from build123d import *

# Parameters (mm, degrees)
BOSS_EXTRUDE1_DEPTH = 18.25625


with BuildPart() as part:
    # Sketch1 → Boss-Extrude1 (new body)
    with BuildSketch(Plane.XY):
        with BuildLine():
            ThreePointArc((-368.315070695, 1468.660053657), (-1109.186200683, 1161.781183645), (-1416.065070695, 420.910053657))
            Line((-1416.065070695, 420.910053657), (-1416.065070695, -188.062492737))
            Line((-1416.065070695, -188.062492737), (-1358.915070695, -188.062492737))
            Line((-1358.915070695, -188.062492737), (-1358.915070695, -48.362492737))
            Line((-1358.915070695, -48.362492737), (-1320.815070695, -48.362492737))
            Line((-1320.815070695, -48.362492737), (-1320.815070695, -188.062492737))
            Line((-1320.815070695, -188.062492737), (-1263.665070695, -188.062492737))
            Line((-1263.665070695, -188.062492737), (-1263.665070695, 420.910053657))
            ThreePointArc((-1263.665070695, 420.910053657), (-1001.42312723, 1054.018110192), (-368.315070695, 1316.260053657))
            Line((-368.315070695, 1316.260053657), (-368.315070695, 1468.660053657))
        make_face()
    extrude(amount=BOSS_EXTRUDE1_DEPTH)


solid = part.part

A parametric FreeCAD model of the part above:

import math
import FreeCAD as App
import Part
import Sketcher

V = App.Vector
Q = App.Units.Quantity

doc = App.newDocument("Part")
params = doc.addObject("Spreadsheet::Sheet", "Params")
for row, (alias, value) in enumerate([
    ("sketch1_height", "6 in"),
    ("sketch1_radius", "41.25 in"),
    ("sketch1_width", "1.5 in"),
    ("sketch1_height2", "5.5 in"),
    ("pad1_length", "0.71875 in"),
], start=1):
    params.set(f"A{row}", alias)
    params.set(f"B{row}", "=" + value)
    params.setAlias(f"B{row}", alias)

body = doc.addObject("PartDesign::Body", "Body")

# Sketch on XY plane
sketch1 = body.newObject("Sketcher::SketchObject", "Sketch")
sketch1.AttachmentSupport = (doc.getObject("XY_Plane"), [""])
sketch1.MapMode = "FlatFace"
sketch1.addGeometry(Part.ArcOfCircle(Part.Circle(V(-368, 421, 0), V(0, 0, 1), 1048), math.radians(90), math.radians(180)), False)
sketch1.addGeometry(Part.LineSegment(V(-1416, 421, 0), V(-1416, -188, 0)), False)
sketch1.addGeometry(Part.LineSegment(V(-1416, -188, 0), V(-1359, -188, 0)), False)
sketch1.addGeometry(Part.LineSegment(V(-1359, -188, 0), V(-1359, -48, 0)), False)
sketch1.addGeometry(Part.LineSegment(V(-1359, -48, 0), V(-1321, -48, 0)), False)
sketch1.addGeometry(Part.LineSegment(V(-1321, -48, 0), V(-1321, -188, 0)), False)
sketch1.addGeometry(Part.LineSegment(V(-1321, -188, 0), V(-1264, -188, 0)), False)
sketch1.addGeometry(Part.LineSegment(V(-1264, -188, 0), V(-1264, 421, 0)), False)
sketch1.addGeometry(Part.ArcOfCircle(Part.Circle(V(-368, 421, 0), V(0, 0, 1), 895), math.radians(90), math.radians(180)), False)
sketch1.addGeometry(Part.LineSegment(V(-368, 1316, 0), V(-368, 1469, 0)), False)
sketch1.addConstraint(Sketcher.Constraint("Tangent", 0, 2, 1, 1))
sketch1.addConstraint(Sketcher.Constraint("Coincident", 1, 2, 2, 1))
sketch1.addConstraint(Sketcher.Constraint("Coincident", 2, 2, 3, 1))
sketch1.addConstraint(Sketcher.Constraint("Coincident", 3, 2, 4, 1))
sketch1.addConstraint(Sketcher.Constraint("Coincident", 4, 2, 5, 1))
sketch1.addConstraint(Sketcher.Constraint("Coincident", 5, 2, 6, 1))
sketch1.addConstraint(Sketcher.Constraint("Coincident", 6, 2, 7, 1))
sketch1.addConstraint(Sketcher.Constraint("Tangent", 7, 2, 8, 2))
sketch1.addConstraint(Sketcher.Constraint("Coincident", 8, 1, 9, 1))
sketch1.addConstraint(Sketcher.Constraint("Coincident", 9, 2, 0, 1))
sketch1.addConstraint(Sketcher.Constraint("Vertical", 1))
sketch1.addConstraint(Sketcher.Constraint("Horizontal", 2))
sketch1.addConstraint(Sketcher.Constraint("Vertical", 3))
sketch1.addConstraint(Sketcher.Constraint("Horizontal", 4))
sketch1.addConstraint(Sketcher.Constraint("Vertical", 5))
sketch1.addConstraint(Sketcher.Constraint("Horizontal", 6))
sketch1.addConstraint(Sketcher.Constraint("Vertical", 7))
sketch1.addConstraint(Sketcher.Constraint("Vertical", 9))
sketch1.addConstraint(Sketcher.Constraint("Coincident", 8, 3, 0, 3))
sketch1.addConstraint(Sketcher.Constraint("Horizontal", 2, 2, 5, 2))
sketch1.addConstraint(Sketcher.Constraint("Equal", 2, 6))
sketch1.addConstraint(Sketcher.Constraint("DistanceY", 9, 1, 9, 2, Q("6 in")))
sketch1.addConstraint(Sketcher.Constraint("Radius", 0, Q("41.25 in")))
sketch1.addConstraint(Sketcher.Constraint("DistanceX", 4, 1, 4, 2, Q("1.5 in")))
sketch1.addConstraint(Sketcher.Constraint("DistanceY", 3, 1, 3, 2, Q("5.5 in")))
sketch1.addConstraint(Sketcher.Constraint("DistanceX", 7, 2, 9, 2, Q("35.25 in")))
sketch1.addConstraint(Sketcher.Constraint("DistanceY", 1, 2, 1, 1, Q("608.972546 mm")))
sketch1.addConstraint(Sketcher.Constraint("DistanceX", 0, 3, -1, 1, Q("368.315071 mm")))
sketch1.addConstraint(Sketcher.Constraint("DistanceY", -1, 1, 0, 3, Q("420.910054 mm")))
sketch1.setExpression("Constraints[21]", "Params.sketch1_height")
sketch1.setExpression("Constraints[22]", "Params.sketch1_radius")
sketch1.setExpression("Constraints[23]", "Params.sketch1_width")
sketch1.setExpression("Constraints[24]", "Params.sketch1_height2")
pad1 = body.newObject("PartDesign::Pad", "Pad")
pad1.Profile = sketch1
pad1.setExpression("Length", "Params.pad1_length")

doc.recompute()
